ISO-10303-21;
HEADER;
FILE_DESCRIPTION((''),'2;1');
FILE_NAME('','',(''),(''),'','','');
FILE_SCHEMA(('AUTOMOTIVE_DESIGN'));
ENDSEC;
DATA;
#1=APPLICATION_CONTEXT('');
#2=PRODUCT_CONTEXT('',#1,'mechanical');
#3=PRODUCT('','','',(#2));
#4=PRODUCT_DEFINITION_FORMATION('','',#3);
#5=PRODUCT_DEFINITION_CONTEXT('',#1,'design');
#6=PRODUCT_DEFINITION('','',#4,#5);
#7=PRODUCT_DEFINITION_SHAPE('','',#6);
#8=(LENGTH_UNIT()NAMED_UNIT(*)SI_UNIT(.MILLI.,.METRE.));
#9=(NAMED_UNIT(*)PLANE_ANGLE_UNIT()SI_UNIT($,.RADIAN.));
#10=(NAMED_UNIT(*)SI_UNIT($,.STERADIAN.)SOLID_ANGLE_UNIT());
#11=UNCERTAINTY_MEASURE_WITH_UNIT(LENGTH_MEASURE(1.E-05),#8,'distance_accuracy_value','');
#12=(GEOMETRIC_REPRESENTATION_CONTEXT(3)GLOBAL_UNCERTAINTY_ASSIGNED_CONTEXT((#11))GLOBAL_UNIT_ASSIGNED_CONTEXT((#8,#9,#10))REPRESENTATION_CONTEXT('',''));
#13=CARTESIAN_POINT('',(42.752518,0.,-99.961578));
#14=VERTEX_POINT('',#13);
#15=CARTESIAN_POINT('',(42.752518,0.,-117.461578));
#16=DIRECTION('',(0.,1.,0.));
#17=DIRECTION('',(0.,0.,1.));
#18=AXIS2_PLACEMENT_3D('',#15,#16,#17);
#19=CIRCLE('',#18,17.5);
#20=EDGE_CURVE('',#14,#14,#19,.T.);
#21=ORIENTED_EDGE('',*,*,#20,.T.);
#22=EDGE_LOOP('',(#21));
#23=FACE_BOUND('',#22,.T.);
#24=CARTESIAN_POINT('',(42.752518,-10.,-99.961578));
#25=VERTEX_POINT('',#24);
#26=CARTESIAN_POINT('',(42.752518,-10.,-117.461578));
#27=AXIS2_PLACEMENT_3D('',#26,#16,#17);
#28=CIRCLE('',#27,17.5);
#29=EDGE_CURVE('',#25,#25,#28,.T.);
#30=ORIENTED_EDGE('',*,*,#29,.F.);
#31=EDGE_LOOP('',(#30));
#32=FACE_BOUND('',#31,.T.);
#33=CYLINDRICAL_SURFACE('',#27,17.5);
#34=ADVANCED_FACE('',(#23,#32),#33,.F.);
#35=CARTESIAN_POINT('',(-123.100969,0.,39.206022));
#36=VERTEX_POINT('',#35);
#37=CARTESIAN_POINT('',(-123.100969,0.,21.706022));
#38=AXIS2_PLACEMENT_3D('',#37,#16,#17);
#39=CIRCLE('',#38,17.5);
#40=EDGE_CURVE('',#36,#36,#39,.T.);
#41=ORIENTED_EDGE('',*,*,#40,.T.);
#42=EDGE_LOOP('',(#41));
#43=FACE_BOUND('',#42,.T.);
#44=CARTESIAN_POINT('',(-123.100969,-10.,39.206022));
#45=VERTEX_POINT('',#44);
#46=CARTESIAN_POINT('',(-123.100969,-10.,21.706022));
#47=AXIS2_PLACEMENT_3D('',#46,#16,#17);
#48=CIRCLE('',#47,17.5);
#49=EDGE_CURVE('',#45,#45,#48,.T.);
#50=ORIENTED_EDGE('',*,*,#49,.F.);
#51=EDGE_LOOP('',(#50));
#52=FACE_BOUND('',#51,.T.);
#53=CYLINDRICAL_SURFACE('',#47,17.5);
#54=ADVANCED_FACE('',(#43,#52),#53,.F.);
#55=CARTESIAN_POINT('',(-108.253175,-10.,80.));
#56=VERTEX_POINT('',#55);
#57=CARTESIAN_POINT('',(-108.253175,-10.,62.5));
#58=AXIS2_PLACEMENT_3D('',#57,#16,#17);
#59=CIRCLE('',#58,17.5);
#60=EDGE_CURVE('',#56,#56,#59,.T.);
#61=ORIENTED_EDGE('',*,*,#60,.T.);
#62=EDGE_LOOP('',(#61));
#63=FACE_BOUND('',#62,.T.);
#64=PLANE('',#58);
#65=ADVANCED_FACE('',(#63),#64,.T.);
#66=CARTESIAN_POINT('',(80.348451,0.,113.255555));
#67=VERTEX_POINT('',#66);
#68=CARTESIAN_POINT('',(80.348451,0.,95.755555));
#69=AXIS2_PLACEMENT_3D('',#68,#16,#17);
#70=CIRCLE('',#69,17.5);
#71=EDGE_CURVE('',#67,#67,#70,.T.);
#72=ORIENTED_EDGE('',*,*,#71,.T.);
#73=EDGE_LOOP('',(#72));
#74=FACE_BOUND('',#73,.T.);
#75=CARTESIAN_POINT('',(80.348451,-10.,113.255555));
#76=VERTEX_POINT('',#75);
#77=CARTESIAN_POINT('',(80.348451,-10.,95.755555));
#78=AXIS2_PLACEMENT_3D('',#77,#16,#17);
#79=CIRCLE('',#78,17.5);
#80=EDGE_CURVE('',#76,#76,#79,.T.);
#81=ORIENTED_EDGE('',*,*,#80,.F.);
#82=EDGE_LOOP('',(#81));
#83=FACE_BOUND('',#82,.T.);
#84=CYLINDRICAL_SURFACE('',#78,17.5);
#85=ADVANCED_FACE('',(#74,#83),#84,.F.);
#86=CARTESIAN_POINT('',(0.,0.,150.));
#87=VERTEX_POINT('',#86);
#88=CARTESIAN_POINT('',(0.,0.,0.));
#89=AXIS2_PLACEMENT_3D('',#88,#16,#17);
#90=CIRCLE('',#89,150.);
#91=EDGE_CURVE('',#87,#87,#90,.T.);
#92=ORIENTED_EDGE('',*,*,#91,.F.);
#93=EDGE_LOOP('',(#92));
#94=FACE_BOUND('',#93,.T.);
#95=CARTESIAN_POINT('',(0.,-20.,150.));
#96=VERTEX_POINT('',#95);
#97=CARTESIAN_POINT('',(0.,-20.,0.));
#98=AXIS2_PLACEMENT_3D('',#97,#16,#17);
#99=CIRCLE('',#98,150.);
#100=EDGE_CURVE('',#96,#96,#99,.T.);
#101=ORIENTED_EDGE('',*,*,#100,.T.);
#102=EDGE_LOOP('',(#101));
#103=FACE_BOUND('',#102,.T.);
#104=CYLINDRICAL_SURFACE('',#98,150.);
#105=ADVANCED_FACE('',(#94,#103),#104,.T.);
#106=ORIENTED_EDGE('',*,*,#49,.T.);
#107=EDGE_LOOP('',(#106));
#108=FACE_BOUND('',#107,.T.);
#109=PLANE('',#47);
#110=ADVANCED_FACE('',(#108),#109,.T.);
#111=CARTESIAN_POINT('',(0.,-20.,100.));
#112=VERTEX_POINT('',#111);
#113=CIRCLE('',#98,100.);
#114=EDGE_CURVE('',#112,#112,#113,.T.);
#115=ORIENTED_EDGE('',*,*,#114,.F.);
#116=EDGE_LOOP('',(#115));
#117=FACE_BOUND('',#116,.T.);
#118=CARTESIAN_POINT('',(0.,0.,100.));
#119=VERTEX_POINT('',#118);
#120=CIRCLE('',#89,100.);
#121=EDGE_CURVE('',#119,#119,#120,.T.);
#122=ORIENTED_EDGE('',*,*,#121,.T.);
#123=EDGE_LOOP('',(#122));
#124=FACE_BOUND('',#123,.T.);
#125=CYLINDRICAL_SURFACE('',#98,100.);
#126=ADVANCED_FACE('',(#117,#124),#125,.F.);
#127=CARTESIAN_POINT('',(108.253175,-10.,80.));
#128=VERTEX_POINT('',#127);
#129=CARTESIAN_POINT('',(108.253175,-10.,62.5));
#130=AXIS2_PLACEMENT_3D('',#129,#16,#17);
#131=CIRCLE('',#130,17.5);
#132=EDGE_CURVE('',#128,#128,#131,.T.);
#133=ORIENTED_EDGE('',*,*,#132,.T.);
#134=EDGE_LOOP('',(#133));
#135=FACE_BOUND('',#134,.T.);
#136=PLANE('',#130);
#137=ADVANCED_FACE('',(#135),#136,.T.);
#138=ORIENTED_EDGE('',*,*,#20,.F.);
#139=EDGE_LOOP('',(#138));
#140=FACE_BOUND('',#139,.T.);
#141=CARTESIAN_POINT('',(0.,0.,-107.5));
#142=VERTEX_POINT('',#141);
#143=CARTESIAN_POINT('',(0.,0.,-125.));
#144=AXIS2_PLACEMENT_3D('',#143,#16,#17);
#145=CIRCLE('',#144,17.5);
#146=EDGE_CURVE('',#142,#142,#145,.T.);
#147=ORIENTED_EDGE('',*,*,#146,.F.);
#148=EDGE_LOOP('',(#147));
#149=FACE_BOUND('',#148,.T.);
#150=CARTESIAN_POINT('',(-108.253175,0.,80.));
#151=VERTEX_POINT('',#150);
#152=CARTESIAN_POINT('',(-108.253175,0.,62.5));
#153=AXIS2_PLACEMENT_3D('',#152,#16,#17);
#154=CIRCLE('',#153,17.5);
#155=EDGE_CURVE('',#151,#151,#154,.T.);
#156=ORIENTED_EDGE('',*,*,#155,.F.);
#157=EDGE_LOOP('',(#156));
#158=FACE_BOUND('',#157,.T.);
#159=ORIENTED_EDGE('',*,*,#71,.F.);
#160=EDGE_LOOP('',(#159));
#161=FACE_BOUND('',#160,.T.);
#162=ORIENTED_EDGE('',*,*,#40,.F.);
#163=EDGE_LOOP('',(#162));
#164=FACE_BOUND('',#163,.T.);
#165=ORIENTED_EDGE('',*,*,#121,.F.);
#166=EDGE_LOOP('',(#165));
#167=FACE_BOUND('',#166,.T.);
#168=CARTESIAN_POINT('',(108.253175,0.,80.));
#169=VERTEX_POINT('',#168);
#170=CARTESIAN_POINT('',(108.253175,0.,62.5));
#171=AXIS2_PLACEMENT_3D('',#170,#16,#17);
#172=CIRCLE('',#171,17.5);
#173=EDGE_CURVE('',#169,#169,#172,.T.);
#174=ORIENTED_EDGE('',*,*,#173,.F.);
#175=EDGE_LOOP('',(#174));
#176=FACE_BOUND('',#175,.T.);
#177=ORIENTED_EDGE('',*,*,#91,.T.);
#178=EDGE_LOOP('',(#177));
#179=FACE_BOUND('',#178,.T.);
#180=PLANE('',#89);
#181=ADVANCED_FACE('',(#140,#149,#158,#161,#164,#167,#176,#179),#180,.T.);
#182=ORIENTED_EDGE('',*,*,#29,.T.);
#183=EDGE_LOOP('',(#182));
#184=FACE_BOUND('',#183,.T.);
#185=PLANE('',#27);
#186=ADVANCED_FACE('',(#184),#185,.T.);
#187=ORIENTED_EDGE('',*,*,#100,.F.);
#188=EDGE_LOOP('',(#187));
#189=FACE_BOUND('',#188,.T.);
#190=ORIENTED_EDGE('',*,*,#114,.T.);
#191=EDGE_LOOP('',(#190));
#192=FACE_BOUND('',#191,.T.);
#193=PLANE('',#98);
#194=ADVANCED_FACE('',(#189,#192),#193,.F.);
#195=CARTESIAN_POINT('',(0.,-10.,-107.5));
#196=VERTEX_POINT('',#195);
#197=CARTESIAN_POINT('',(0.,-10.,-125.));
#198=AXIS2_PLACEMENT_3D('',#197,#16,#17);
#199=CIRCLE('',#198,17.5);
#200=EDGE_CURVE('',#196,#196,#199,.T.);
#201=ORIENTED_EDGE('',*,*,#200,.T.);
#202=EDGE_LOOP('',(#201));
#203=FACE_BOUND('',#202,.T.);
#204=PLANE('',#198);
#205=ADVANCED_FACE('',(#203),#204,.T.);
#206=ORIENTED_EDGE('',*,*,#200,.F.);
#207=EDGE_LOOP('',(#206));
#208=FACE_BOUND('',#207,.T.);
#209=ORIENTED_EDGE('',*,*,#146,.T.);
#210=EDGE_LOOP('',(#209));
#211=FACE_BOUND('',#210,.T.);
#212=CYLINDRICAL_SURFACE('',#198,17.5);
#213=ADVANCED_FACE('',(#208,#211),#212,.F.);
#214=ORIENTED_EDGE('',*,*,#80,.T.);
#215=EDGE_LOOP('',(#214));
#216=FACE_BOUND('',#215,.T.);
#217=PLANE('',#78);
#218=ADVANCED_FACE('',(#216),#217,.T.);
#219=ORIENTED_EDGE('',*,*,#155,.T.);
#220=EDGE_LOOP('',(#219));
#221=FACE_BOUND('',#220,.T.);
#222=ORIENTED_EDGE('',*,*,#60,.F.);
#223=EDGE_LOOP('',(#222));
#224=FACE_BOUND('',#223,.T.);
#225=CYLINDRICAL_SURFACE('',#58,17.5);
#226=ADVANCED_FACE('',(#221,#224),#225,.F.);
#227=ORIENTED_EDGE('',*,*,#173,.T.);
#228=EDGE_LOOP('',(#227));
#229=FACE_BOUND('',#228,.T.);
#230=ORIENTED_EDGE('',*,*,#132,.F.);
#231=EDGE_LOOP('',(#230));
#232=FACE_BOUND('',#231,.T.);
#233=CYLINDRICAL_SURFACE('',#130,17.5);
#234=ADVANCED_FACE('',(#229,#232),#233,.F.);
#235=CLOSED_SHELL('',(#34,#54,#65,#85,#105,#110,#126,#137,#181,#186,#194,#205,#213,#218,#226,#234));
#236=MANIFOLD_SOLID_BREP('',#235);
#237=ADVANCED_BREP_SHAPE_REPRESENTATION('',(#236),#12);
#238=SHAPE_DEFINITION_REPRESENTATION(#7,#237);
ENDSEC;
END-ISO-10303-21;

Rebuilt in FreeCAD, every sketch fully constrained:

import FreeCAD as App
import Part
import Sketcher
from FreeCAD import Vector
Q = App.Units.Quantity

doc = App.newDocument("Part")
body = doc.addObject("PartDesign::Body", "Body")

# Sketch on XZ plane
sketch1 = doc.addObject("Sketcher::SketchObject", "Sketch")
body.addObject(sketch1)
sketch1.AttachmentSupport = (doc.XZ_Plane, [""])
sketch1.MapMode = "FlatFace"
sketch1.addGeometry([
    Part.Circle(Vector(0, 0, 0), Vector(0, 0, 1), 150),
    Part.Circle(Vector(0, 0, 0), Vector(0, 0, 1), 100),
], False)
sketch1.addConstraint([
    Sketcher.Constraint("Coincident", 0, 3, -1, 1),
    Sketcher.Constraint("Coincident", 1, 3, -1, 1),
    Sketcher.Constraint("Diameter", 0, Q("300 mm")),
    Sketcher.Constraint("Diameter", 1, Q("200 mm")),
])
pad1 = doc.addObject("PartDesign::Pad", "Pad")
body.addObject(pad1)
pad1.Profile = sketch1
pad1.Length = 20

# Sketch on XZ plane
sketch2 = doc.addObject("Sketcher::SketchObject", "Sketch001")
body.addObject(sketch2)
sketch2.AttachmentSupport = (doc.XZ_Plane, [""])
sketch2.MapMode = "FlatFace"
sketch2.addGeometry([
    Part.Circle(Vector(0, -125, 0), Vector(0, 0, 1), 18),  # 0
    Part.Circle(Vector(43, -117, 0), Vector(0, 0, 1), 18),  # 1
    Part.Circle(Vector(108, 62, 0), Vector(0, 0, 1), 18),  # 2
    Part.Circle(Vector(80, 96, 0), Vector(0, 0, 1), 18),  # 3
    Part.Circle(Vector(-108, 62, 0), Vector(0, 0, 1), 18),  # 4
    Part.Circle(Vector(-123, 22, 0), Vector(0, 0, 1), 18),  # 5
], False)
sketch2.addConstraint([
    Sketcher.Constraint("Equal", 0, 1),
    Sketcher.Constraint("Equal", 1, 2),
    Sketcher.Constraint("Equal", 2, 3),
    Sketcher.Constraint("Equal", 3, 4),
    Sketcher.Constraint("Equal", 4, 5),
    Sketcher.Constraint("Symmetric", 2, 3, 4, 3, -2),
    Sketcher.Constraint("PointOnObject", 0, 3, -2),
    Sketcher.Constraint("Diameter", 0, Q("35 mm")),
    Sketcher.Constraint("DistanceY", 0, 3, -1, 1, Q("125 mm")),
    Sketcher.Constraint("DistanceY", -1, 1, 2, 3, Q("62.5 mm")),
    Sketcher.Constraint("DistanceY", 1, 3, 5, 3, Q("139.1676 mm")),
    Sketcher.Constraint("DistanceX", -1, 1, 3, 3, Q("80.348451 mm")),
    Sketcher.Constraint("DistanceX", 5, 3, -1, 1, Q("123.100969 mm")),
    Sketcher.Constraint("DistanceX", 4, 3, 2, 3, Q("216.506351 mm")),
    Sketcher.Constraint("DistanceX", -1, 1, 1, 3, Q("42.752518 mm")),
    Sketcher.Constraint("DistanceY", 1, 3, -1, 1, Q("117.461578 mm")),
    Sketcher.Constraint("DistanceY", -1, 1, 3, 3, Q("95.755555 mm")),
])
pocket1 = doc.addObject("PartDesign::Pocket", "Pocket")
body.addObject(pocket1)
pocket1.Profile = sketch2
pocket1.Length = 10
pocket1.Reversed = True

doc.recompute()
